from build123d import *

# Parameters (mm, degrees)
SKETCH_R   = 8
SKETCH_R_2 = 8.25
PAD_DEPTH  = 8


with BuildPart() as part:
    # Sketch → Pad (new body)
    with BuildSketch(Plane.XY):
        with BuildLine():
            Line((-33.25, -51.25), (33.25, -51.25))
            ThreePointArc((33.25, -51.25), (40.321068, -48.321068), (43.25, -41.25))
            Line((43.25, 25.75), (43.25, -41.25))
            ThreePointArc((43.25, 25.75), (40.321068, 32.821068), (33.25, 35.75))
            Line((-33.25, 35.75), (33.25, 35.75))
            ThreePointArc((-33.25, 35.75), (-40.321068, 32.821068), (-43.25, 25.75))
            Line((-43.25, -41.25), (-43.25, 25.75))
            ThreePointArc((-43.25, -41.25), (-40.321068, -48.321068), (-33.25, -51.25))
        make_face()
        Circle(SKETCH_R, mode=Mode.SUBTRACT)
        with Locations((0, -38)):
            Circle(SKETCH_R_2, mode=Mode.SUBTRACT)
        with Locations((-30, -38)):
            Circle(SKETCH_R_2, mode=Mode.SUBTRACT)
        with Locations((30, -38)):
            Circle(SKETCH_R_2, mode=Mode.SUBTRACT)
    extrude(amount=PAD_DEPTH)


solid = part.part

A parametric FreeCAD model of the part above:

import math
import FreeCAD as App
import Part
import Sketcher

V = App.Vector
Q = App.Units.Quantity

doc = App.newDocument("Part")
body = doc.addObject("PartDesign::Body", "Body")

# Sketch on XY plane
sketch1 = body.newObject("Sketcher::SketchObject", "Sketch")
sketch1.AttachmentSupport = (doc.getObject("XY_Plane"), [""])
sketch1.MapMode = "FlatFace"
sketch1.addGeometry(Part.LineSegment(V(-33.25, -51.25, 0), V(33.25, -51.25, 0)), False)
sketch1.addGeometry(Part.ArcOfCircle(Part.Circle(V(33.250001, -41.250001, 0), V(0, 0, 1), 9.999999), math.radians(-90.000004), math.radians(0.000004)), False)
sketch1.addGeometry(Part.LineSegment(V(43.25, -41.25, 0), V(43.25, 25.75, 0)), False)
sketch1.addGeometry(Part.ArcOfCircle(Part.Circle(V(33.250001, 25.750001, 0), V(0, 0, 1), 9.999999), math.radians(-0.000004), math.radians(90.000004)), False)
sketch1.addGeometry(Part.LineSegment(V(33.25, 35.75, 0), V(-33.25, 35.75, 0)), False)
sketch1.addGeometry(Part.ArcOfCircle(Part.Circle(V(-33.250001, 25.750001, 0), V(0, 0, 1), 9.999999), math.radians(89.999996), math.radians(180.000004)), False)
sketch1.addGeometry(Part.LineSegment(V(-43.25, 25.75, 0), V(-43.25, -41.25, 0)), False)
sketch1.addGeometry(Part.ArcOfCircle(Part.Circle(V(-33.250001, -41.250001, 0), V(0, 0, 1), 9.999999), math.radians(179.999996), math.radians(270.000004)), False)
sketch1.addGeometry(Part.Circle(V(-30, -38, 0), V(0, 0, 1), 8.25), False)
sketch1.addGeometry(Part.Circle(V(0, -38, 0), V(0, 0, 1), 8.25), False)
sketch1.addGeometry(Part.Circle(V(30, -38, 0), V(0, 0, 1), 8.25), False)
sketch1.addGeometry(Part.Circle(V(0, 0, 0), V(0, 0, 1), 8), False)
sketch1.addConstraint(Sketcher.Constraint("Tangent", 0, 2, 1, 1))
sketch1.addConstraint(Sketcher.Constraint("Tangent", 1, 2, 2, 1))
sketch1.addConstraint(Sketcher.Constraint("Tangent", 2, 2, 3, 1))
sketch1.addConstraint(Sketcher.Constraint("Tangent", 3, 2, 4, 1))
sketch1.addConstraint(Sketcher.Constraint("Tangent", 4, 2, 5, 1))
sketch1.addConstraint(Sketcher.Constraint("Tangent", 5, 2, 6, 1))
sketch1.addConstraint(Sketcher.Constraint("Tangent", 6, 2, 7, 1))
sketch1.addConstraint(Sketcher.Constraint("Tangent", 7, 2, 0, 1))
sketch1.addConstraint(Sketcher.Constraint("Horizontal", 0))
sketch1.addConstraint(Sketcher.Constraint("Vertical", 2))
sketch1.addConstraint(Sketcher.Constraint("Horizontal", 4))
sketch1.addConstraint(Sketcher.Constraint("Vertical", 6))
sketch1.addConstraint(Sketcher.Constraint("Coincident", 11, 3, -1, 1))
sketch1.addConstraint(Sketcher.Constraint("Equal", 1, 3))
sketch1.addConstraint(Sketcher.Constraint("Equal", 3, 5))
sketch1.addConstraint(Sketcher.Constraint("Equal", 5, 7))
sketch1.addConstraint(Sketcher.Constraint("Equal", 8, 9))
sketch1.addConstraint(Sketcher.Constraint("Equal", 9, 10))
sketch1.addConstraint(Sketcher.Constraint("Symmetric", 8, 3, 10, 3, -2))
sketch1.addConstraint(Sketcher.Constraint("PointOnObject", 9, 3, -2))
sketch1.addConstraint(Sketcher.Constraint("Horizontal", 8, 3, 9, 3))
sketch1.addConstraint(Sketcher.Constraint("Diameter", 11, Q("16 mm")))
sketch1.addConstraint(Sketcher.Constraint("Radius", 1, Q("9.999999 mm")))
sketch1.addConstraint(Sketcher.Constraint("Diameter", 8, Q("16.5 mm")))
sketch1.addConstraint(Sketcher.Constraint("DistanceY", 2, 1, 2, 2, Q("67 mm")))
sketch1.addConstraint(Sketcher.Constraint("DistanceX", 0, 1, 0, 2, Q("66.5 mm")))
sketch1.addConstraint(Sketcher.Constraint("DistanceX", 8, 3, -1, 1, Q("30 mm")))
sketch1.addConstraint(Sketcher.Constraint("DistanceY", 8, 3, -1, 1, Q("38 mm")))
sketch1.addConstraint(Sketcher.Constraint("DistanceX", -1, 1, 1, 3, Q("33.250001 mm")))
sketch1.addConstraint(Sketcher.Constraint("DistanceY", 1, 3, -1, 1, Q("41.250001 mm")))
pad1 = body.newObject("PartDesign::Pad", "Pad")
pad1.Profile = sketch1
pad1.Length = 8

doc.recompute()
